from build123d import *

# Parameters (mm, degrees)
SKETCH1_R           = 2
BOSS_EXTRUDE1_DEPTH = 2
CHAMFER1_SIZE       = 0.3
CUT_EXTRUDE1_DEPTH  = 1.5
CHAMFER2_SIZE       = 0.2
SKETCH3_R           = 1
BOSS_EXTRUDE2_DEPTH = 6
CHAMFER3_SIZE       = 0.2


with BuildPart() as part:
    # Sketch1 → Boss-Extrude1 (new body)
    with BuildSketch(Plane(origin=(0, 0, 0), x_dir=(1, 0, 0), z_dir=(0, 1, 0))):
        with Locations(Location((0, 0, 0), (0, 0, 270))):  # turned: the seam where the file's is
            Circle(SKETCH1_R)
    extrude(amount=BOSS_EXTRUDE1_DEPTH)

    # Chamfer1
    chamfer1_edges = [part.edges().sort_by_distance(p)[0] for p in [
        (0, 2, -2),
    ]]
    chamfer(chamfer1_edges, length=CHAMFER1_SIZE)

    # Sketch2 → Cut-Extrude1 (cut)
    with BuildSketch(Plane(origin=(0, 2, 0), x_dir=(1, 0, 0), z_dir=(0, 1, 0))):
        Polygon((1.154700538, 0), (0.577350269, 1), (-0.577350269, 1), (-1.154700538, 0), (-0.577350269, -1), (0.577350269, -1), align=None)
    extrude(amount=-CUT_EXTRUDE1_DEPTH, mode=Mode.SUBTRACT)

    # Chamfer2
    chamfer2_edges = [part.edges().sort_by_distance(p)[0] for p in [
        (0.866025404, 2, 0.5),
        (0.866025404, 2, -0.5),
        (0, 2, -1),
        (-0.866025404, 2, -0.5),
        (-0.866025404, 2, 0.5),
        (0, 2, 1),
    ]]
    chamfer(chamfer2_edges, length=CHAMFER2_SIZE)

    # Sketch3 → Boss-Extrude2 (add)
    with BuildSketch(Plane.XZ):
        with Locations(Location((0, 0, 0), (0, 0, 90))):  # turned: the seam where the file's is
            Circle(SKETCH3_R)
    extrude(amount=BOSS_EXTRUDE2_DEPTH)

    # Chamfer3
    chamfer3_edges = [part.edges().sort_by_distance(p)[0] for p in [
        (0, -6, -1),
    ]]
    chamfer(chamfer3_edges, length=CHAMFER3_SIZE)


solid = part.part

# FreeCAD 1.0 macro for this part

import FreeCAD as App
import Part
import Sketcher

V = App.Vector
Q = App.Units.Quantity


def edges_at(feature, points):
    """Names of the edges that pass closest to the given points."""
    edges = feature.Shape.Edges
    near = lambda p: min(range(len(edges)), key=lambda i: edges[i].distToShape(Part.Vertex(*p))[0])
    return sorted({f"Edge{near(p) + 1}" for p in points})


def add_polygon(sketch, points):
    """Adds a closed chain of lines whose ends are joined by coincident constraints."""
    first, n = sketch.GeometryCount, len(points)
    for a, b in zip(points, points[1:] + points[:1]):
        sketch.addGeometry(Part.LineSegment(App.Vector(*a, 0), App.Vector(*b, 0)), False)
    for i in range(n):
        sketch.addConstraint(Sketcher.Constraint("Coincident", first + i, 2, first + (i + 1) % n, 1))

doc = App.newDocument("Part")
body = doc.addObject("PartDesign::Body", "Body")

sketch1 = body.newObject("Sketcher::SketchObject", "Sketch")
sketch1.AttachmentSupport = (doc.getObject("XZ_Plane"), [""])
sketch1.MapMode = "FlatFace"
sketch1.addGeometry(Part.Circle(V(0, 0, 0), V(0, 0, 1), 2), False)
sketch1.addConstraint(Sketcher.Constraint("Coincident", 0, 3, -1, 1))
sketch1.addConstraint(Sketcher.Constraint("Diameter", 0, Q("4 mm")))
pad1 = body.newObject("PartDesign::Pad", "Pad")
pad1.Profile = sketch1
pad1.Length = 2
pad1.Reversed = True
doc.recompute()

chamfer = body.newObject("PartDesign::Chamfer", "Chamfer")
chamfer.Base = (pad1, edges_at(pad1, [(0, 2, -2)]))
chamfer.Size = 0.3

sketch2 = body.newObject("Sketcher::SketchObject", "Sketch001")
sketch2.AttachmentSupport = (doc.getObject("XZ_Plane"), [""])
sketch2.MapMode = "FlatFace"
sketch2.AttachmentOffset = App.Placement(V(0, 0, -2), App.Rotation())
add_polygon(sketch2, [(1.2, 0), (0.6, -1), (-0.6, -1), (-1.2, 0), (-0.6, 1), (0.6, 1)])
sketch2.addConstraint(Sketcher.Constraint("Horizontal", 1))
sketch2.addConstraint(Sketcher.Constraint("Horizontal", 4))
sketch2.addConstraint(Sketcher.Constraint("Symmetric", 0, 2, 3, 2, -1, 1))
sketch2.addConstraint(Sketcher.Constraint("Symmetric", 2, 2, 5, 2, -1, 1))
sketch2.addConstraint(Sketcher.Constraint("PointOnObject", 2, 2, -1))
sketch2.addConstraint(Sketcher.Constraint("Parallel", 2, 5))
sketch2.addConstraint(Sketcher.Constraint("Vertical", 1, 2, 3, 2))
sketch2.addConstraint(Sketcher.Constraint("Angle", 0, Q("-120 deg")))
sketch2.addConstraint(Sketcher.Constraint("DistanceY", 0, 2, -1, 1, Q("1 mm")))
sketch2.addConstraint(Sketcher.Constraint("DistanceX", 1, 2, 1, 1, Q("1.154701 mm")))
pocket1 = body.newObject("PartDesign::Pocket", "Pocket")
pocket1.Profile = sketch2
pocket1.Length = 1.5
pocket1.Reversed = True
doc.recompute()

chamfer2 = body.newObject("PartDesign::Chamfer", "Chamfer001")
chamfer2.Base = (pocket1, edges_at(pocket1, [
    (0.866, 2, 0.5),
    (0.866, 2, -0.5),
    (0, 2, -1),
    (-0.866, 2, -0.5),
    (-0.866, 2, 0.5),
    (0, 2, 1),
]))
chamfer2.Size = 0.2

sketch3 = body.newObject("Sketcher::SketchObject", "Sketch002")
sketch3.AttachmentSupport = (doc.getObject("XZ_Plane"), [""])
sketch3.MapMode = "FlatFace"
sketch3.addGeometry(Part.Circle(V(0, 0, 0), V(0, 0, 1), 1), False)
sketch3.addConstraint(Sketcher.Constraint("Coincident", 0, 3, -1, 1))
sketch3.addConstraint(Sketcher.Constraint("Diameter", 0, Q("2 mm")))
pad2 = body.newObject("PartDesign::Pad", "Pad001")
pad2.Profile = sketch3
pad2.Length = 6
doc.recompute()

chamfer3 = body.newObject("PartDesign::Chamfer", "Chamfer002")
chamfer3.Base = (pad2, edges_at(pad2, [(0, -6, -1)]))
chamfer3.Size = 0.2

doc.recompute()
